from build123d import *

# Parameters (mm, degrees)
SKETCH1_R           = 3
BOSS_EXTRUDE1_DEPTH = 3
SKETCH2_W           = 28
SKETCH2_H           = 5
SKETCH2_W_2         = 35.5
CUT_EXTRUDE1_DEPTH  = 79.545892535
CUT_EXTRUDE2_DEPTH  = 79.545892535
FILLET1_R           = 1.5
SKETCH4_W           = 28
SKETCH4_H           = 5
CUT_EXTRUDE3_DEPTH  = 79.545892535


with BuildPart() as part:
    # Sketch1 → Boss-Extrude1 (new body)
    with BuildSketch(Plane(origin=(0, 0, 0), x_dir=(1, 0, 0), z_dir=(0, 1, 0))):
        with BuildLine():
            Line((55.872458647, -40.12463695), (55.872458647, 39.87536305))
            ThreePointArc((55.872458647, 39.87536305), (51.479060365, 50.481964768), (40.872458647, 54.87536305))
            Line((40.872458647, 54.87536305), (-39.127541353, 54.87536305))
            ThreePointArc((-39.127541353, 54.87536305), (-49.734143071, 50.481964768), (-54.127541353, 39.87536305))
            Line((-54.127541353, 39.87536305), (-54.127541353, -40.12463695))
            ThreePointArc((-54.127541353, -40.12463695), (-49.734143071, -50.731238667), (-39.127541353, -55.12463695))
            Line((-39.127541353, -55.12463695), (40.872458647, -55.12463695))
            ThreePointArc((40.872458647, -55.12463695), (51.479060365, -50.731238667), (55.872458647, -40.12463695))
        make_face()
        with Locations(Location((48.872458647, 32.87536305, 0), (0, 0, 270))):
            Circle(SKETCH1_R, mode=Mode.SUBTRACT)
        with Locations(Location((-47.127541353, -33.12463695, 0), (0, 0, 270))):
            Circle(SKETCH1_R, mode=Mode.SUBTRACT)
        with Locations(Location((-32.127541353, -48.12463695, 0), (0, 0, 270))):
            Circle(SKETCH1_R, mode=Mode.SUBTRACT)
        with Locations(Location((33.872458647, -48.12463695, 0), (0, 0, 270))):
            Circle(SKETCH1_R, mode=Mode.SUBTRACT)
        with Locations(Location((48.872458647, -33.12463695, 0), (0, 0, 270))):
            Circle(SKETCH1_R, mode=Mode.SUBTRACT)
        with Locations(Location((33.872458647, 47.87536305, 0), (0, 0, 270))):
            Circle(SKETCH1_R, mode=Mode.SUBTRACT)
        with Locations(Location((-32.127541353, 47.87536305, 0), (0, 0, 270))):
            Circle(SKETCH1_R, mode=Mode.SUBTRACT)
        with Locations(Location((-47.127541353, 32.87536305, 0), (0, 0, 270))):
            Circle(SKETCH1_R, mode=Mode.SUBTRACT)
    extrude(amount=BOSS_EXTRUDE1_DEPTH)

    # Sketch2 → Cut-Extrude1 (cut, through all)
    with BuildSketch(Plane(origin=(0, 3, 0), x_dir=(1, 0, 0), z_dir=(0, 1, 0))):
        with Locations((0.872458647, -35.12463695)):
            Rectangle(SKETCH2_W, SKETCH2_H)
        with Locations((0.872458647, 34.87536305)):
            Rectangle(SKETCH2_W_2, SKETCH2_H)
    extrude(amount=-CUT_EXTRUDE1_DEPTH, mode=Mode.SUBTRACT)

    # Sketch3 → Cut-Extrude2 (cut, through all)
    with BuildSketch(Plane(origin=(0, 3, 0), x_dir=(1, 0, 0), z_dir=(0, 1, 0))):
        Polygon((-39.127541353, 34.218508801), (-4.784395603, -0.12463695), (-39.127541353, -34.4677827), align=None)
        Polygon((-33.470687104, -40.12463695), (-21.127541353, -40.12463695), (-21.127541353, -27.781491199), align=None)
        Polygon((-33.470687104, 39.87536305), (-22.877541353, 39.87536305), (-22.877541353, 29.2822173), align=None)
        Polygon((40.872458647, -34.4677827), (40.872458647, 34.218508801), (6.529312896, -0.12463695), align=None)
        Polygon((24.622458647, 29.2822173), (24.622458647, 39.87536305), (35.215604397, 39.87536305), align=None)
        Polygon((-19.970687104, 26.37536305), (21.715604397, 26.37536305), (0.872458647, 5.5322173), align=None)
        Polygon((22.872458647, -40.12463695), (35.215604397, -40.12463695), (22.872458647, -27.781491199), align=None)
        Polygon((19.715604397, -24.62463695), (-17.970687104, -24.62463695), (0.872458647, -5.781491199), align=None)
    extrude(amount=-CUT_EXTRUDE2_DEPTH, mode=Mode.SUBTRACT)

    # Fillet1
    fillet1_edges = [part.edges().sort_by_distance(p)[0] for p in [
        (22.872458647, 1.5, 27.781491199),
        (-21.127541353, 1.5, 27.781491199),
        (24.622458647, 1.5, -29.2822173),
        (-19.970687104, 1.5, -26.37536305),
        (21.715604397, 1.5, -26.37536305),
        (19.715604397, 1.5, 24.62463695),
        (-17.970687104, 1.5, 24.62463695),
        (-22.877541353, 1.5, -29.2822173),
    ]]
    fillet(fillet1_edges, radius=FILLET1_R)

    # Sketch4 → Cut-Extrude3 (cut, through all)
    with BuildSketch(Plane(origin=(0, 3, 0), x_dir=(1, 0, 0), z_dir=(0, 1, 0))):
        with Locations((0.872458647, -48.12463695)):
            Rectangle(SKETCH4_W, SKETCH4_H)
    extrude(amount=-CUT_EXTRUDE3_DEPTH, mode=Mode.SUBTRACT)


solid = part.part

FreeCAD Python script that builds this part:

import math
import FreeCAD as App
import Part
import Sketcher
from FreeCAD import Vector


def edges_at(feature, points):
    """Names of the edges that pass closest to the given points."""
    edges = feature.Shape.Edges
    near = lambda p: min(range(len(edges)), key=lambda i: edges[i].distToShape(Part.Vertex(*p))[0])
    return sorted({f"Edge{near(p) + 1}" for p in points})


def add_polygon(sketch, points):
    """Adds a closed chain of lines whose ends are joined by coincident constraints."""
    first, n = sketch.GeometryCount, len(points)
    for a, b in zip(points, points[1:] + points[:1]):
        sketch.addGeometry(Part.LineSegment(App.Vector(*a, 0), App.Vector(*b, 0)), False)
    for i in range(n):
        sketch.addConstraint(Sketcher.Constraint("Coincident", first + i, 2, first + (i + 1) % n, 1))

doc = App.newDocument("Part")
body = doc.addObject("PartDesign::Body", "Body")

sketch1 = body.newObject("Sketcher::SketchObject", "Sketch")
sketch1.AttachmentSupport = (doc.getObject("XZ_Plane"), [""])
sketch1.MapMode = "FlatFace"
sketch1.addGeometry([
    Part.LineSegment(Vector(55.9, 40.1, 0), Vector(55.9, -39.9, 0)),
    Part.ArcOfCircle(Part.Circle(Vector(40.9, -39.9, 0), Vector(0, 0, 1), 15), math.radians(-90), math.radians(0)),
    Part.LineSegment(Vector(40.9, -54.9, 0), Vector(-39.1, -54.9, 0)),
    Part.ArcOfCircle(Part.Circle(Vector(-39.1, -39.9, 0), Vector(0, 0, 1), 15), math.radians(180), math.radians(270)),
    Part.LineSegment(Vector(-54.1, -39.9, 0), Vector(-54.1, 40.1, 0)),
    Part.ArcOfCircle(Part.Circle(Vector(-39.1, 40.1, 0), Vector(0, 0, 1), 15), math.radians(90), math.radians(180)),
    Part.LineSegment(Vector(-39.1, 55.1, 0), Vector(40.9, 55.1, 0)),
    Part.ArcOfCircle(Part.Circle(Vector(40.9, 40.1, 0), Vector(0, 0, 1), 15), math.radians(0), math.radians(90)),
    Part.Circle(Vector(-32.1, 48.1, 0), Vector(0, 0, 1), 3),
    Part.Circle(Vector(-47.1, 33.1, 0), Vector(0, 0, 1), 3),
    Part.Circle(Vector(33.9, 48.1, 0), Vector(0, 0, 1), 3),
    Part.Circle(Vector(48.9, 33.1, 0), Vector(0, 0, 1), 3),
    Part.Circle(Vector(-47.1, -32.9, 0), Vector(0, 0, 1), 3),
    Part.Circle(Vector(-32.1, -47.9, 0), Vector(0, 0, 1), 3),
    Part.Circle(Vector(48.9, -32.9, 0), Vector(0, 0, 1), 3),
    Part.Circle(Vector(33.9, -47.9, 0), Vector(0, 0, 1), 3),
], False)
sketch1.addConstraint([
    Sketcher.Constraint("Tangent", 0, 2, 1, 2),
    Sketcher.Constraint("Tangent", 1, 1, 2, 1),
    Sketcher.Constraint("Tangent", 2, 2, 3, 2),
    Sketcher.Constraint("Tangent", 3, 1, 4, 1),
    Sketcher.Constraint("Tangent", 4, 2, 5, 2),
    Sketcher.Constraint("Tangent", 5, 1, 6, 1),
    Sketcher.Constraint("Tangent", 6, 2, 7, 2),
    Sketcher.Constraint("Tangent", 7, 1, 0, 1),
    Sketcher.Constraint("Vertical", 0),
    Sketcher.Constraint("Horizontal", 2),
    Sketcher.Constraint("Vertical", 4),
    Sketcher.Constraint("Horizontal", 6),
    Sketcher.Constraint("Equal", 1, 3),
    Sketcher.Constraint("Equal", 3, 5),
    Sketcher.Constraint("Equal", 5, 7),
    Sketcher.Constraint("Equal", 8, 9),
    Sketcher.Constraint("Equal", 9, 10),
    Sketcher.Constraint("Equal", 10, 11),
    Sketcher.Constraint("Equal", 11, 12),
    Sketcher.Constraint("Equal", 12, 13),
    Sketcher.Constraint("Equal", 13, 14),
    Sketcher.Constraint("Equal", 14, 15),
    Sketcher.Constraint("Horizontal", 8, 3, 10, 3),
    Sketcher.Constraint("Horizontal", 9, 3, 11, 3),
    Sketcher.Constraint("Horizontal", 12, 3, 14, 3),
    Sketcher.Constraint("Horizontal", 13, 3, 15, 3),
    Sketcher.Constraint("Vertical", 9, 3, 12, 3),
    Sketcher.Constraint("Vertical", 8, 3, 13, 3),
    Sketcher.Constraint("Vertical", 11, 3, 14, 3),
    Sketcher.Constraint("Vertical", 10, 3, 15, 3),
    Sketcher.Constraint("Equal", 6, 0),
    Sketcher.Constraint("Diameter", 8, 6.0),
    Sketcher.Constraint("Radius", 1, 15.0),
    Sketcher.Constraint("DistanceX", 2, 2, 2, 1, 80.0),
    Sketcher.Constraint("DistanceX", 5, 3, 8, 3, 7.0),
    Sketcher.Constraint("DistanceY", 5, 3, 8, 3, 8.0),
    Sketcher.Constraint("DistanceX", 9, 3, 5, 3, 8.0),
    Sketcher.Constraint("DistanceY", 9, 3, 5, 3, 7.0),
    Sketcher.Constraint("DistanceX", 10, 3, 7, 3, 7.0),
    Sketcher.Constraint("DistanceX", 7, 3, 11, 3, 8.0),
    Sketcher.Constraint("DistanceY", 3, 3, 12, 3, 7.0),
    Sketcher.Constraint("DistanceY", 13, 3, 3, 3, 8.0),
    Sketcher.Constraint("DistanceX", -1, 1, 1, 3, 40.872459),
    Sketcher.Constraint("DistanceY", 1, 3, -1, 1, 39.875363),
])
pad1 = body.newObject("PartDesign::Pad", "Pad")
pad1.Profile = sketch1
pad1.Length = 3
pad1.Reversed = True

sketch2 = body.newObject("Sketcher::SketchObject", "Sketch001")
sketch2.AttachmentSupport = (doc.getObject("XZ_Plane"), [""])
sketch2.MapMode = "FlatFace"
sketch2.AttachmentOffset = App.Placement(Vector(0, 0, -3), App.Rotation())
add_polygon(sketch2, [(-13, 33), (-13, 38), (15, 38), (15, 33)])
add_polygon(sketch2, [(-17, -37), (-17, -32), (19, -32), (19, -37)])
sketch2.addConstraint([
    Sketcher.Constraint("Vertical", 0),
    Sketcher.Constraint("Horizontal", 1),
    Sketcher.Constraint("Vertical", 2),
    Sketcher.Constraint("Horizontal", 3),
    Sketcher.Constraint("Vertical", 4),
    Sketcher.Constraint("Horizontal", 5),
    Sketcher.Constraint("Vertical", 6),
    Sketcher.Constraint("Horizontal", 7),
    Sketcher.Constraint("Equal", 2, 4),
    Sketcher.Constraint("DistanceX", 1, 1, 1, 2, 28.0),
    Sketcher.Constraint("DistanceY", 0, 1, 0, 2, 5.0),
    Sketcher.Constraint("DistanceX", 5, 1, 5, 2, 35.5),
    Sketcher.Constraint("DistanceY", 4, 2, 3, 2, 65.0),
    Sketcher.Constraint("DistanceX", 4, 2, 3, 2, 3.75),
    Sketcher.Constraint("DistanceX", 0, 2, -1, 1, 13.127541),
    Sketcher.Constraint("DistanceY", -1, 1, 0, 2, 37.624637),
])
pocket1 = body.newObject("PartDesign::Pocket", "Pocket")
pocket1.Profile = sketch2
pocket1.Type = "ThroughAll"
pocket1.Reversed = True

sketch3 = body.newObject("Sketcher::SketchObject", "Sketch002")
sketch3.AttachmentSupport = (doc.getObject("XZ_Plane"), [""])
sketch3.MapMode = "FlatFace"
sketch3.AttachmentOffset = App.Placement(Vector(0, 0, -3), App.Rotation())
add_polygon(sketch3, [(-5, 0), (-39, -34), (-39, 34)])
add_polygon(sketch3, [(-33, 40), (-21, 40), (-21, 28)])
add_polygon(sketch3, [(-23, -40), (-33, -40), (-23, -29)])
add_polygon(sketch3, [(41, 34), (41, -34), (7, 0)])
add_polygon(sketch3, [(25, -40), (25, -29), (35, -40)])
add_polygon(sketch3, [(22, -26), (-20, -26), (1, -6)])
add_polygon(sketch3, [(23, 40), (35, 40), (23, 28)])
add_polygon(sketch3, [(-18, 25), (20, 25), (1, 6)])
sketch3.addConstraint([
    Sketcher.Constraint("Vertical", 1),
    Sketcher.Constraint("Horizontal", 3),
    Sketcher.Constraint("Vertical", 4),
    Sketcher.Constraint("Horizontal", 6),
    Sketcher.Constraint("Vertical", 8),
    Sketcher.Constraint("Vertical", 9),
    Sketcher.Constraint("Vertical", 12),
    Sketcher.Constraint("Horizontal", 14),
    Sketcher.Constraint("Horizontal", 15),
    Sketcher.Constraint("Horizontal", 18),
    Sketcher.Constraint("Vertical", 20),
    Sketcher.Constraint("Horizontal", 21),
    Sketcher.Constraint("Perpendicular", 0, 2),
    Sketcher.Constraint("Parallel", 2, 5),
    Sketcher.Constraint("Perpendicular", 5, 7),
    Sketcher.Constraint("Perpendicular", 7, 10),
    Sketcher.Constraint("Perpendicular", 10, 11),
    Sketcher.Constraint("Perpendicular", 11, 13),
    Sketcher.Constraint("Perpendicular", 13, 16),
    Sketcher.Constraint("Perpendicular", 16, 17),
    Sketcher.Constraint("Perpendicular", 17, 19),
    Sketcher.Constraint("Parallel", 19, 22),
    Sketcher.Constraint("Perpendicular", 22, 23),
    Sketcher.Constraint("Horizontal", 0, 2, 9, 2),
    Sketcher.Constraint("Horizontal", 2, 2, 10, 2),
    Sketcher.Constraint("Horizontal", 1, 2, 11, 2),
    Sketcher.Constraint("Horizontal", 7, 2, 12, 2),
    Sketcher.Constraint("Horizontal", 8, 2, 13, 2),
    Sketcher.Constraint("Horizontal", 5, 2, 18, 2),
    Sketcher.Constraint("Horizontal", 4, 2, 19, 2),
    Sketcher.Constraint("Vertical", 5, 2, 6, 2),
    Sketcher.Constraint("Vertical", 13, 2, 18, 2),
    Sketcher.Constraint("Vertical", 16, 2, 22, 2),
    Sketcher.Constraint("DistanceX", 1, 2, 3, 2, 18.0),
    Sketcher.Constraint("DistanceY", 2, 2, 3, 2, 40.0),
    Sketcher.Constraint("DistanceY", 0, 2, 4, 2, 62.0),
    Sketcher.Constraint("DistanceY", 6, 2, 2, 2, 40.0),
    Sketcher.Constraint("DistanceX", 0, 2, 9, 2, 80.0),
    Sketcher.Constraint("DistanceX", 2, 2, 13, 2, 40.0),
    Sketcher.Constraint("DistanceX", 16, 2, 19, 2, 22.0),
    Sketcher.Constraint("DistanceY", 22, 2, 4, 2, 22.0),
    Sketcher.Constraint("DistanceX", 7, 2, 12, 2, 47.5),
    Sketcher.Constraint("DistanceY", 8, 2, 15, 2, 13.5),
    Sketcher.Constraint("DistanceX", 6, 2, 15, 2, 13.5),
    Sketcher.Constraint("DistanceY", 21, 2, 20, 2, 15.5),
    Sketcher.Constraint("DistanceX", 15, 2, 15, 1, 41.686292),
    Sketcher.Constraint("DistanceX", 0, 2, -1, 1, 39.127541),
    Sketcher.Constraint("DistanceY", 0, 2, -1, 1, 34.218509),
])
pocket2 = body.newObject("PartDesign::Pocket", "Pocket001")
pocket2.Profile = sketch3
pocket2.Type = "ThroughAll"
pocket2.Reversed = True
doc.recompute()

fillet = body.newObject("PartDesign::Fillet", "Fillet")
fillet.Base = (pocket2, edges_at(pocket2, [
    (22.872, 1.5, 27.781),
    (-21.128, 1.5, 27.781),
    (24.622, 1.5, -29.282),
    (-19.971, 1.5, -26.375),
    (21.716, 1.5, -26.375),
    (19.716, 1.5, 24.625),
    (-17.971, 1.5, 24.625),
    (-22.878, 1.5, -29.282),
]))
fillet.Radius = 1.5

sketch4 = body.newObject("Sketcher::SketchObject", "Sketch003")
sketch4.AttachmentSupport = (doc.getObject("XZ_Plane"), [""])
sketch4.MapMode = "FlatFace"
sketch4.AttachmentOffset = App.Placement(Vector(0, 0, -3), App.Rotation())
add_polygon(sketch4, [(-13, 46), (-13, 51), (15, 51), (15, 46)])
sketch4.addConstraint([
    Sketcher.Constraint("Vertical", 0),
    Sketcher.Constraint("Horizontal", 1),
    Sketcher.Constraint("Vertical", 2),
    Sketcher.Constraint("Horizontal", 3),
    Sketcher.Constraint("DistanceX", 1, 1, 1, 2, 28.0),
    Sketcher.Constraint("DistanceY", 0, 1, 0, 2, 5.0),
    Sketcher.Constraint("DistanceX", 0, 2, -1, 1, 13.127541),
    Sketcher.Constraint("DistanceY", -1, 1, 0, 2, 50.624637),
])
pocket3 = body.newObject("PartDesign::Pocket", "Pocket002")
pocket3.Profile = sketch4
pocket3.Type = "ThroughAll"
pocket3.Reversed = True

doc.recompute()
